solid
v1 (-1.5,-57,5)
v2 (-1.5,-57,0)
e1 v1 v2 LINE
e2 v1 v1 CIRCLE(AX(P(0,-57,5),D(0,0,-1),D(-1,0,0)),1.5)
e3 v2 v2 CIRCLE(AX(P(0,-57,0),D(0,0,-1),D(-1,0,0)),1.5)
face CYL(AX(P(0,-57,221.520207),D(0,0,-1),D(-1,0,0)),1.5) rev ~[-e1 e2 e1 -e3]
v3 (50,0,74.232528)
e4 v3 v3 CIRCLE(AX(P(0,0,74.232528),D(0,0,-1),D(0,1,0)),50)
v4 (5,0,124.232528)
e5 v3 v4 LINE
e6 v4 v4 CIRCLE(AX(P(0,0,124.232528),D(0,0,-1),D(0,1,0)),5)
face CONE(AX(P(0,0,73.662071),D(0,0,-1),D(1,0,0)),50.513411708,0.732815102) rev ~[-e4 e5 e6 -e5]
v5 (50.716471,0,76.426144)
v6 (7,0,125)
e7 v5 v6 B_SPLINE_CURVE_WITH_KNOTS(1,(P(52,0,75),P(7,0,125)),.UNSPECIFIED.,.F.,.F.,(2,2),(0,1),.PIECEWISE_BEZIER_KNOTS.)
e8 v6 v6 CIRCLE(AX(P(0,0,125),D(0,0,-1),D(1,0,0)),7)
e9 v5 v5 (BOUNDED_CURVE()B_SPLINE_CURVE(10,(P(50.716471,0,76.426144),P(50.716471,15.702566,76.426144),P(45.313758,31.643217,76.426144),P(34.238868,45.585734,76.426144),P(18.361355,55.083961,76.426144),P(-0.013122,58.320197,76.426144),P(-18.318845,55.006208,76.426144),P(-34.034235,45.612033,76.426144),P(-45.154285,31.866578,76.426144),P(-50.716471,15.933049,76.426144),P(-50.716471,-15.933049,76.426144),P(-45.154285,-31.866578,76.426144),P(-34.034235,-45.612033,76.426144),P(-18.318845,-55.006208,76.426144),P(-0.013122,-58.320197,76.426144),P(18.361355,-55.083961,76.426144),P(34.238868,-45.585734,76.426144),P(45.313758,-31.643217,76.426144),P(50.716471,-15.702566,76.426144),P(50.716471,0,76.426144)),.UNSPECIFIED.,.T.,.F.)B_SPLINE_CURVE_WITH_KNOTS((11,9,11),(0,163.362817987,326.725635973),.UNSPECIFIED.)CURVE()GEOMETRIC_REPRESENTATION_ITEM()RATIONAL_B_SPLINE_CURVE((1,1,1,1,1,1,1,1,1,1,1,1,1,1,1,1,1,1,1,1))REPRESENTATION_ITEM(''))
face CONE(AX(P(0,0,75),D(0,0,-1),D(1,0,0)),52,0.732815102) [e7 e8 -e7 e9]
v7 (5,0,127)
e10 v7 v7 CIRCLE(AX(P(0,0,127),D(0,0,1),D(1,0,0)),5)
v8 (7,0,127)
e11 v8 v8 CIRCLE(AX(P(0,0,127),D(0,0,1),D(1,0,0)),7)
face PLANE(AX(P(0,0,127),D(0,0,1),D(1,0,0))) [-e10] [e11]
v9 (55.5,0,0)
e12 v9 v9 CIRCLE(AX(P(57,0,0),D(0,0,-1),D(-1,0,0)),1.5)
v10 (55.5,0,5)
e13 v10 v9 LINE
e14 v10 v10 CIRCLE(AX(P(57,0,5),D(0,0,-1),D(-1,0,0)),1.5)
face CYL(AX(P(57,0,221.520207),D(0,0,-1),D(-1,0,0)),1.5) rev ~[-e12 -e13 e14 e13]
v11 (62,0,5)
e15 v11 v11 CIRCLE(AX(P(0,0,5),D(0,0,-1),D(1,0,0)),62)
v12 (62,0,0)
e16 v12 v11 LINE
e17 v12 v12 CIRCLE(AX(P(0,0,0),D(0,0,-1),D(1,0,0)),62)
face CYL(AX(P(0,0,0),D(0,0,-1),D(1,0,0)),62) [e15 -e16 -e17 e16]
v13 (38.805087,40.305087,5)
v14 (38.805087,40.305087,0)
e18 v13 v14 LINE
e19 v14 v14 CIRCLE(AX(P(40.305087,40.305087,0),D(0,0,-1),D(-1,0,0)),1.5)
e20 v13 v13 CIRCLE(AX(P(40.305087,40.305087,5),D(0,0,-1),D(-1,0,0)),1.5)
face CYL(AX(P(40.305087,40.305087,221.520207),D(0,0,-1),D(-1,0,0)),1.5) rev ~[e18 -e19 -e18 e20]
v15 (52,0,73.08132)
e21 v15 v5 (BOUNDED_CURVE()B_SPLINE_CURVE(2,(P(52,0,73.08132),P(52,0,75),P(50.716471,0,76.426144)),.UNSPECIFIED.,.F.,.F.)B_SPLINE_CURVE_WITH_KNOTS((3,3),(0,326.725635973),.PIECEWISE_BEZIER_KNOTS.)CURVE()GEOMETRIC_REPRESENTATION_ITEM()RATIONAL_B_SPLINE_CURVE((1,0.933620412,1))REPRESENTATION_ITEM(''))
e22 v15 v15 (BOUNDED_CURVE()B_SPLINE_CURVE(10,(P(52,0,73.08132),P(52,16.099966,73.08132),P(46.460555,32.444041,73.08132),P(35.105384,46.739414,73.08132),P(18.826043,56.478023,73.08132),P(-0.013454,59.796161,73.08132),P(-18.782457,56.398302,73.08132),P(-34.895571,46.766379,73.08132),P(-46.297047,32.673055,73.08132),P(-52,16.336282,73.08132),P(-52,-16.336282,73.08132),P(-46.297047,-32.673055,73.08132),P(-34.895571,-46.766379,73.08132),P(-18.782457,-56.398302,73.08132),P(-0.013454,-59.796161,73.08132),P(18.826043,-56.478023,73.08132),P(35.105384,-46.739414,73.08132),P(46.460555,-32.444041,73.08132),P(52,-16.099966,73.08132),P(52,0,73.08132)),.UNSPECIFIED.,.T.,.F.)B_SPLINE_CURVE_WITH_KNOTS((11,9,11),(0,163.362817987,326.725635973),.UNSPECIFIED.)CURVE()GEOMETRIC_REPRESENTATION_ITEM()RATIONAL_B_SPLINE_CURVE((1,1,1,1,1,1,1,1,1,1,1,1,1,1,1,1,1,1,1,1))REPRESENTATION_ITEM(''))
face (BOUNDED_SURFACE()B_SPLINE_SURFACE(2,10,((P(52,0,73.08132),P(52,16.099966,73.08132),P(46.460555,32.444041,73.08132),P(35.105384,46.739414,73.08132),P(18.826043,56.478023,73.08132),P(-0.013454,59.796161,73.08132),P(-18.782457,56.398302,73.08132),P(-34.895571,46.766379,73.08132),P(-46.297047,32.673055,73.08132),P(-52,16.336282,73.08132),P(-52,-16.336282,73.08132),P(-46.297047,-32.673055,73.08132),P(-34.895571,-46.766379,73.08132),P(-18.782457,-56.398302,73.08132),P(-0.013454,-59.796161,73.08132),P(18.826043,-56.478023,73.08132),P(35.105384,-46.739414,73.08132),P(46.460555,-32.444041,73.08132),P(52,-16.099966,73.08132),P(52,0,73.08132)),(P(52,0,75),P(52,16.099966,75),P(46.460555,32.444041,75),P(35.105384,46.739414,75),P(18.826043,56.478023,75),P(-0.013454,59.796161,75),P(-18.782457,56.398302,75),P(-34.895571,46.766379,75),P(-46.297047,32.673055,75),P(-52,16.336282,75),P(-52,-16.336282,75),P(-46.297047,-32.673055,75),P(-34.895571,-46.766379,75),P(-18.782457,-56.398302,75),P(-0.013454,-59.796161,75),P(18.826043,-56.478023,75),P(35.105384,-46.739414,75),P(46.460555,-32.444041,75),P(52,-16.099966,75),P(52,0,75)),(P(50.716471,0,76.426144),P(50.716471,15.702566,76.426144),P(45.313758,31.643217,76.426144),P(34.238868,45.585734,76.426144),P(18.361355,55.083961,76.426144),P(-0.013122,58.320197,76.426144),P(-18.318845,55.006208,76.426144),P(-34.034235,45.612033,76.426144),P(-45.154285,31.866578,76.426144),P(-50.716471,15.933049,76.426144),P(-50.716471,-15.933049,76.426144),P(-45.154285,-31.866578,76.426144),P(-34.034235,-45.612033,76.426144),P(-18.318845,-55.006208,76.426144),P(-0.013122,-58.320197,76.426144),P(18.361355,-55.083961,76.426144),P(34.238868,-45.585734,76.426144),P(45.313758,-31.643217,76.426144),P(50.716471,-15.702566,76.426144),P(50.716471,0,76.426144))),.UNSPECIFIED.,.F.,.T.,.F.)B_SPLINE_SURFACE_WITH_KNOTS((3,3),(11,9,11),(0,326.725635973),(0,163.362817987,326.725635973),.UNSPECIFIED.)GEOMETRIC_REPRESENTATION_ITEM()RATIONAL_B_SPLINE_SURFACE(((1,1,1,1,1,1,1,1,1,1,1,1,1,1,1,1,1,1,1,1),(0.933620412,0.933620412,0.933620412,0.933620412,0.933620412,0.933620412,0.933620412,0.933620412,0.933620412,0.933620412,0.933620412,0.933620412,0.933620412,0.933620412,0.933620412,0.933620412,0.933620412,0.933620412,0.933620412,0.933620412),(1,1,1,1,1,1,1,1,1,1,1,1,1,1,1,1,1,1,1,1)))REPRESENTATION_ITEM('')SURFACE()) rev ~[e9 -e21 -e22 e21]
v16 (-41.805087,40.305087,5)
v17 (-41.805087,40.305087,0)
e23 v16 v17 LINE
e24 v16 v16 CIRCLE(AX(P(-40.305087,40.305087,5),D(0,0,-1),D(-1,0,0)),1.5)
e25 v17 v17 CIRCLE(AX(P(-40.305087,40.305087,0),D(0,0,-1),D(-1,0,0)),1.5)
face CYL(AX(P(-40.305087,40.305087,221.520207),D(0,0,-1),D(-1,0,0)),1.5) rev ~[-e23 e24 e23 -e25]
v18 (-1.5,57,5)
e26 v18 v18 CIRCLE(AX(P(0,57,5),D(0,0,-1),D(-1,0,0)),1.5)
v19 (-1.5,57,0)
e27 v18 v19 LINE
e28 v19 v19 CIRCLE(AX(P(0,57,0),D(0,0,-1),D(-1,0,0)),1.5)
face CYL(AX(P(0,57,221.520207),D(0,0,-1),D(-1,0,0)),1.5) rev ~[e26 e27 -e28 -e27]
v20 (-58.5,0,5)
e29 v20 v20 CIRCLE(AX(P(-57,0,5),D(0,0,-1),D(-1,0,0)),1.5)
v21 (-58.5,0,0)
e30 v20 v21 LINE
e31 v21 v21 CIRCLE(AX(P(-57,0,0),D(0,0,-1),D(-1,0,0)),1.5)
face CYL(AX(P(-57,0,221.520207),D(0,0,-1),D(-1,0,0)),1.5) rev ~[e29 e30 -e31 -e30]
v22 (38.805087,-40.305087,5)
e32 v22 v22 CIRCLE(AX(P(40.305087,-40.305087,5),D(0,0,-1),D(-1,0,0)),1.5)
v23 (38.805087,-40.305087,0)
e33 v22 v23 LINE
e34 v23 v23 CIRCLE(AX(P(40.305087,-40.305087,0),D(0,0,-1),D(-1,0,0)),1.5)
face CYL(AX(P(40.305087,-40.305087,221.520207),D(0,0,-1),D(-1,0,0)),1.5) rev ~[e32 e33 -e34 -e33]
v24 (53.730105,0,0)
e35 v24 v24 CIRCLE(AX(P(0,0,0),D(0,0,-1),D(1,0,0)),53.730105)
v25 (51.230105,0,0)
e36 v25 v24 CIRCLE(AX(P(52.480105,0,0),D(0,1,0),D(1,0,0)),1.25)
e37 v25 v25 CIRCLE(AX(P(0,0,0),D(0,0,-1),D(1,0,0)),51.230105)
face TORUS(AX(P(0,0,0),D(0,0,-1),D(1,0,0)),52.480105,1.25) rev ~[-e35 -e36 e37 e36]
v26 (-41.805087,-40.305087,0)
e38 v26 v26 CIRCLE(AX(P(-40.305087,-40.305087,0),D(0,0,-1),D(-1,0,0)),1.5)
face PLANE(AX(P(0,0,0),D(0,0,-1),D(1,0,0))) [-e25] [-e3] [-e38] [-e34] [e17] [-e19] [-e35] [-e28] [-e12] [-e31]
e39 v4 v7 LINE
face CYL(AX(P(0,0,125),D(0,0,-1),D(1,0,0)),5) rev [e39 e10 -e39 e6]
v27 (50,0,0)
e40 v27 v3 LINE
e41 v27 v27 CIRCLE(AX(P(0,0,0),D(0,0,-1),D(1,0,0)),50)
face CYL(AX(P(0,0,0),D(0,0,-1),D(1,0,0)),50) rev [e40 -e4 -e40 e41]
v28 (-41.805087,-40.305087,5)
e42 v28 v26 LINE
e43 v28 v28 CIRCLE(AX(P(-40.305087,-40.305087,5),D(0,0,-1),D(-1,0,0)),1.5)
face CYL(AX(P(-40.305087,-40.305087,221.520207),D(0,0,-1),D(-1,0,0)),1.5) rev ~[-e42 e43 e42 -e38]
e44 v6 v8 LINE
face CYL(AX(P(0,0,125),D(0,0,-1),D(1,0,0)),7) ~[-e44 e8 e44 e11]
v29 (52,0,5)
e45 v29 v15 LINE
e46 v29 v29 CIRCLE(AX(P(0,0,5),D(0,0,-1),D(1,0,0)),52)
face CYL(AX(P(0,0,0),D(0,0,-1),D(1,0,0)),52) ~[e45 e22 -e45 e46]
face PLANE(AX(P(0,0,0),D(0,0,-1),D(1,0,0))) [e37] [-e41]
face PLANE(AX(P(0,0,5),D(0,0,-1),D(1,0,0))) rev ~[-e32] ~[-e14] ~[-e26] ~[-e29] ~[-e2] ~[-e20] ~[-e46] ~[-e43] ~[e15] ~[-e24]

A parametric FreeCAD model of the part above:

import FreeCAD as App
import Part
import Sketcher

V = App.Vector


def edges_at(feature, points):
    """Names of the edges that pass closest to the given points."""
    edges = feature.Shape.Edges
    near = lambda p: min(range(len(edges)), key=lambda i: edges[i].distToShape(Part.Vertex(*p))[0])
    return sorted({f"Edge{near(p) + 1}" for p in points})


def faces_at(feature, points):
    """Names of the faces that lie closest to the given points."""
    faces = feature.Shape.Faces
    near = lambda p: min(range(len(faces)), key=lambda i: faces[i].distToShape(Part.Vertex(*p))[0])
    return sorted({f"Face{near(p) + 1}" for p in points})

doc = App.newDocument("Part")
body = doc.addObject("PartDesign::Body", "Body")

sketch1 = body.newObject("Sketcher::SketchObject", "Sketch")
sketch1.AttachmentSupport = (doc.getObject("XY_Plane"), [""])
sketch1.MapMode = "FlatFace"
sketch1.addGeometry(Part.Circle(V(0, 0, 0), V(0, 0, 1), 52), False)
sketch1.addConstraint([
    Sketcher.Constraint("Coincident", 0, 3, -1, 1),
    Sketcher.Constraint("Diameter", 0, 104.0),
])
pad1 = body.newObject("PartDesign::Pad", "Pad")
pad1.Profile = sketch1
pad1.Length = 75
body2 = doc.addObject("PartDesign::Body", "Body001")

sketch2 = body2.newObject("Sketcher::SketchObject", "Sketch001")
sketch2.AttachmentSupport = (doc.getObject("XY_Plane001"), [""])
sketch2.MapMode = "FlatFace"
sketch2.AttachmentOffset = App.Placement(V(0, 0, 75), App.Rotation())
sketch2.addGeometry(Part.Circle(V(0, 0, 0), V(0, 0, 1), 7), False)
sketch2.addConstraint([
    Sketcher.Constraint("Coincident", 0, 3, -1, 1),
    Sketcher.Constraint("Diameter", 0, 14.0),
])
pad2 = body2.newObject("PartDesign::Pad", "Pad001")
pad2.Profile = sketch2
pad2.Length = 2
body3 = doc.addObject("PartDesign::Body", "Body002")
doc.recompute()

body2.Placement = App.Placement(V(0, 0, 50), App.Rotation(V(0, 0, 1), 0))
boolean = body3.newObject("PartDesign::Boolean", "Boolean")
boolean.Type = "Fuse"
boolean.addObjects([body2])
body4 = doc.addObject("PartDesign::Body", "Body003")

sketch3 = body4.newObject("Sketcher::SketchObject", "Sketch002")
sketch3.AttachmentSupport = (doc.getObject("XY_Plane003"), [""])
sketch3.MapMode = "FlatFace"
sketch3.AttachmentOffset = App.Placement(V(0, 0, 75), App.Rotation())
sketch3.addGeometry(Part.Circle(V(0, 0, 0), V(0, 0, 1), 52), False)
sketch3.addConstraint([
    Sketcher.Constraint("Coincident", 0, 3, -1, 1),
    Sketcher.Constraint("Diameter", 0, 104.0),
])

sketch4 = body4.newObject("Sketcher::SketchObject", "Sketch003")
sketch4.AttachmentSupport = (doc.getObject("XY_Plane003"), [""])
sketch4.MapMode = "FlatFace"
sketch4.AttachmentOffset = App.Placement(V(0, 0, 125), App.Rotation())
sketch4.addGeometry(Part.Circle(V(0, 0, 0), V(0, 0, 1), 7), False)
sketch4.addConstraint([
    Sketcher.Constraint("Coincident", 0, 3, -1, 1),
    Sketcher.Constraint("Diameter", 0, 14.0),
])

additiveloft = body4.newObject("PartDesign::AdditiveLoft", "AdditiveLoft")
additiveloft.Profile = sketch3
additiveloft.Sections = [sketch4]
doc.recompute()

boolean2 = body4.newObject("PartDesign::Boolean", "Boolean001")
boolean2.Type = "Fuse"
boolean2.addObjects([body3])
doc.recompute()

boolean3 = body4.newObject("PartDesign::Boolean", "Boolean002")
boolean3.Type = "Fuse"
boolean3.addObjects([body])
doc.recompute()

thickness = body4.newObject("PartDesign::Thickness", "Thickness")
thickness.Base = (boolean3, faces_at(boolean3, [(0, 0, 0)]))
thickness.Value = 2
thickness.Reversed = True
thickness.Join = "Intersection"

sketch5 = body4.newObject("Sketcher::SketchObject", "Sketch004")
sketch5.AttachmentSupport = (doc.getObject("XY_Plane003"), [""])
sketch5.MapMode = "FlatFace"
sketch5.AttachmentOffset = App.Placement(V(0, 0, 127), App.Rotation())
sketch5.addGeometry(Part.Circle(V(0, 0, 0), V(0, 0, 1), 5), False)
sketch5.addConstraint([
    Sketcher.Constraint("Coincident", 0, 3, -1, 1),
    Sketcher.Constraint("Diameter", 0, 10.0),
])
pocket1 = body4.newObject("PartDesign::Pocket", "Pocket")
pocket1.Profile = sketch5
pocket1.Length = 25

sketch6 = body4.newObject("Sketcher::SketchObject", "Sketch005")
sketch6.AttachmentSupport = (doc.getObject("XY_Plane003"), [""])
sketch6.MapMode = "FlatFace"
sketch6.addGeometry([
    Part.Circle(V(0, 0, 0), V(0, 0, 1), 62),
    Part.Circle(V(0, 0, 0), V(0, 0, 1), 52),
], False)
sketch6.addConstraint([
    Sketcher.Constraint("Coincident", 0, 3, -1, 1),
    Sketcher.Constraint("Coincident", 1, 3, -1, 1),
    Sketcher.Constraint("Diameter", 0, 124.0),
    Sketcher.Constraint("Diameter", 1, 104.0),
])
pad3 = body4.newObject("PartDesign::Pad", "Pad002")
pad3.Profile = sketch6
pad3.Length = 5

sketch7 = body4.newObject("Sketcher::SketchObject", "Sketch006")
sketch7.AttachmentSupport = (doc.getObject("XY_Plane003"), [""])
sketch7.MapMode = "FlatFace"
sketch7.AttachmentOffset = App.Placement(V(0, 0, 5), App.Rotation())
sketch7.addGeometry([
    Part.Circle(V(0, 57, 0), V(0, 0, 1), 1.5),
    Part.Circle(V(40.3, 40.3, 0), V(0, 0, 1), 1.5),
    Part.Circle(V(57, 0, 0), V(0, 0, 1), 1.5),
    Part.Circle(V(40.3, -40.3, 0), V(0, 0, 1), 1.5),
    Part.Circle(V(0, -57, 0), V(0, 0, 1), 1.5),
    Part.Circle(V(-40.3, -40.3, 0), V(0, 0, 1), 1.5),
    Part.Circle(V(-57, 0, 0), V(0, 0, 1), 1.5),
    Part.Circle(V(-40.3, 40.3, 0), V(0, 0, 1), 1.5),
], False)
sketch7.addConstraint([
    Sketcher.Constraint("Equal", 0, 1),
    Sketcher.Constraint("Equal", 1, 2),
    Sketcher.Constraint("Equal", 2, 3),
    Sketcher.Constraint("Equal", 3, 4),
    Sketcher.Constraint("Equal", 4, 5),
    Sketcher.Constraint("Equal", 5, 6),
    Sketcher.Constraint("Equal", 6, 7),
    Sketcher.Constraint("Symmetric", 0, 3, 4, 3, -1, 1),
    Sketcher.Constraint("Symmetric", 1, 3, 5, 3, -1, 1),
    Sketcher.Constraint("Symmetric", 2, 3, 6, 3, -1, 1),
    Sketcher.Constraint("Symmetric", 3, 3, 7, 3, -1, 1),
    Sketcher.Constraint("Symmetric", 3, 3, 5, 3, -2),
    Sketcher.Constraint("PointOnObject", 0, 3, -2),
    Sketcher.Constraint("PointOnObject", 2, 3, -1),
    Sketcher.Constraint("Diameter", 0, 3.0),
    Sketcher.Constraint("DistanceY", -1, 1, 0, 3, 57.0),
    Sketcher.Constraint("DistanceX", -1, 1, 2, 3, 57.0),
    Sketcher.Constraint("DistanceX", -1, 1, 1, 3, 40.305087),
    Sketcher.Constraint("DistanceY", -1, 1, 1, 3, 40.305087),
])
doc.recompute()
hole = body4.newObject("PartDesign::Hole", "Hole")
hole.Profile = sketch7
hole.ThreadType = "None"
hole.Diameter = 3
hole.DepthType = "ThroughAll"

sketch8 = body4.newObject("Sketcher::SketchObject", "Sketch007")
sketch8.AttachmentSupport = (doc.getObject("XZ_Plane003"), [""])
sketch8.MapMode = "FlatFace"
sketch8.addGeometry(Part.Circle(V(-52.5, 0, 0), V(0, 0, 1), 1.2), False)
sketch8.addConstraint([
    Sketcher.Constraint("PointOnObject", 0, 3, -1),
    Sketcher.Constraint("Diameter", 0, 2.5),
    Sketcher.Constraint("DistanceX", 0, 3, -1, 1, 52.480105),
])

sketch9 = body4.newObject("Sketcher::SketchObject", "Sketch008")
sketch9.AttachmentSupport = (doc.getObject("XY_Plane003"), [""])
sketch9.MapMode = "FlatFace"
sketch9.addGeometry(Part.Circle(V(0, 0, 0), V(0, 0, 1), 52), False)
sketch9.addConstraint([
    Sketcher.Constraint("Coincident", 0, 3, -1, 1),
    Sketcher.Constraint("Diameter", 0, 105.0),
])
doc.recompute()

subtractivepipe = body4.newObject("PartDesign::SubtractivePipe", "SubtractivePipe")
subtractivepipe.Profile = sketch8
subtractivepipe.Spine = (sketch9, ["Edge1"])
doc.recompute()

fillet = body4.newObject("PartDesign::Fillet", "Fillet")
fillet.Base = (subtractivepipe, edges_at(subtractivepipe, [(-52, 0, 75)]))
fillet.Radius = 5

doc.recompute()
